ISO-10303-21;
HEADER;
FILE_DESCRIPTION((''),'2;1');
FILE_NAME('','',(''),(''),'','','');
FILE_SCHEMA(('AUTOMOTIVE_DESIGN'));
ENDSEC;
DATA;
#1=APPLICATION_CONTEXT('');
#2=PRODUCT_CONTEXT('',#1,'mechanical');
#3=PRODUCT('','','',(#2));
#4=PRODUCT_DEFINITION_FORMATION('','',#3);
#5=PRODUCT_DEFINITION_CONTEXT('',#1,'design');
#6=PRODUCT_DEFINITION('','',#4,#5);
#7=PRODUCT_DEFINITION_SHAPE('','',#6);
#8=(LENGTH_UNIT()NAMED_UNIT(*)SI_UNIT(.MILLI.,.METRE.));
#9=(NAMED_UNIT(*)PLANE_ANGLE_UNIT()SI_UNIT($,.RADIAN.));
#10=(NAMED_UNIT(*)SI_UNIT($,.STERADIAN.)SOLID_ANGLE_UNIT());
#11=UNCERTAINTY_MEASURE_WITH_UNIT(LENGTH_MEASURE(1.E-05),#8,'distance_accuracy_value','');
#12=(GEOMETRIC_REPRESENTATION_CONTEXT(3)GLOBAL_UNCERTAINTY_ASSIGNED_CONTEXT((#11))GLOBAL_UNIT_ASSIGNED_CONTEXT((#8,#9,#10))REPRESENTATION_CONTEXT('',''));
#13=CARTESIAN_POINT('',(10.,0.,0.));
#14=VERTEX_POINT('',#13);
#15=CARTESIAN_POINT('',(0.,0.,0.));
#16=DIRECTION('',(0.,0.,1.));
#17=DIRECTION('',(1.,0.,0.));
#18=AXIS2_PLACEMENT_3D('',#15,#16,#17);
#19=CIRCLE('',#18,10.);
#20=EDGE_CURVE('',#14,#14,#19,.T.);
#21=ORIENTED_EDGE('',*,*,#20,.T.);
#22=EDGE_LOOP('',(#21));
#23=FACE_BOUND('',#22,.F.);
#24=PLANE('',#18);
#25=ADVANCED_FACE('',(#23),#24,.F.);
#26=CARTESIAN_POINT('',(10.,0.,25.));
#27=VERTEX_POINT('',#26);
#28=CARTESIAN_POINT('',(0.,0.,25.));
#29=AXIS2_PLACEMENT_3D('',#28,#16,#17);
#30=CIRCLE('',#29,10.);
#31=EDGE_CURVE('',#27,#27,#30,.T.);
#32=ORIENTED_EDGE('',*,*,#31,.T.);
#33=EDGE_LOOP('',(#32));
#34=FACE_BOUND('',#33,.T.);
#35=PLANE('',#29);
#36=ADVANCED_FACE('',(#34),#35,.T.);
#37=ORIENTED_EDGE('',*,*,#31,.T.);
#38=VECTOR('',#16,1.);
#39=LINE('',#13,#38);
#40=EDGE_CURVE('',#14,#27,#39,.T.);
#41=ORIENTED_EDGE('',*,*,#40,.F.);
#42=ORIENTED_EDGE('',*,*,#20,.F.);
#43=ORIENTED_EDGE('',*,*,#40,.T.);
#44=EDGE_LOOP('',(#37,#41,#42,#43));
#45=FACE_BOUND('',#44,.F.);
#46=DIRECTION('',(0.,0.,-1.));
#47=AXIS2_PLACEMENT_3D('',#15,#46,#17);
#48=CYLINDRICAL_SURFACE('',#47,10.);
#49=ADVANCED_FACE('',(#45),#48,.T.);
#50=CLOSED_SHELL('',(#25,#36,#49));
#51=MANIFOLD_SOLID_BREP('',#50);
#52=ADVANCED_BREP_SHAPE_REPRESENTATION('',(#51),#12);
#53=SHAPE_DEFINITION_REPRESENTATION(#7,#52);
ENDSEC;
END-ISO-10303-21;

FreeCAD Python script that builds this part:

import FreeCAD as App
import Part
import Sketcher

V = App.Vector
Q = App.Units.Quantity

doc = App.newDocument("Part")
body = doc.addObject("PartDesign::Body", "Body")

sketch1 = body.newObject("Sketcher::SketchObject", "Sketch")
sketch1.AttachmentSupport = (doc.getObject("XY_Plane"), [""])
sketch1.MapMode = "FlatFace"
sketch1.addGeometry(Part.Circle(V(0, 0, 0), V(0, 0, 1), 10), False)
sketch1.addConstraint([
    Sketcher.Constraint("Coincident", 0, 3, -1, 1),
    Sketcher.Constraint("Diameter", 0, Q("20 mm")),
])
pad1 = body.newObject("PartDesign::Pad", "Pad")
pad1.Profile = sketch1
pad1.Length = 25

doc.recompute()
